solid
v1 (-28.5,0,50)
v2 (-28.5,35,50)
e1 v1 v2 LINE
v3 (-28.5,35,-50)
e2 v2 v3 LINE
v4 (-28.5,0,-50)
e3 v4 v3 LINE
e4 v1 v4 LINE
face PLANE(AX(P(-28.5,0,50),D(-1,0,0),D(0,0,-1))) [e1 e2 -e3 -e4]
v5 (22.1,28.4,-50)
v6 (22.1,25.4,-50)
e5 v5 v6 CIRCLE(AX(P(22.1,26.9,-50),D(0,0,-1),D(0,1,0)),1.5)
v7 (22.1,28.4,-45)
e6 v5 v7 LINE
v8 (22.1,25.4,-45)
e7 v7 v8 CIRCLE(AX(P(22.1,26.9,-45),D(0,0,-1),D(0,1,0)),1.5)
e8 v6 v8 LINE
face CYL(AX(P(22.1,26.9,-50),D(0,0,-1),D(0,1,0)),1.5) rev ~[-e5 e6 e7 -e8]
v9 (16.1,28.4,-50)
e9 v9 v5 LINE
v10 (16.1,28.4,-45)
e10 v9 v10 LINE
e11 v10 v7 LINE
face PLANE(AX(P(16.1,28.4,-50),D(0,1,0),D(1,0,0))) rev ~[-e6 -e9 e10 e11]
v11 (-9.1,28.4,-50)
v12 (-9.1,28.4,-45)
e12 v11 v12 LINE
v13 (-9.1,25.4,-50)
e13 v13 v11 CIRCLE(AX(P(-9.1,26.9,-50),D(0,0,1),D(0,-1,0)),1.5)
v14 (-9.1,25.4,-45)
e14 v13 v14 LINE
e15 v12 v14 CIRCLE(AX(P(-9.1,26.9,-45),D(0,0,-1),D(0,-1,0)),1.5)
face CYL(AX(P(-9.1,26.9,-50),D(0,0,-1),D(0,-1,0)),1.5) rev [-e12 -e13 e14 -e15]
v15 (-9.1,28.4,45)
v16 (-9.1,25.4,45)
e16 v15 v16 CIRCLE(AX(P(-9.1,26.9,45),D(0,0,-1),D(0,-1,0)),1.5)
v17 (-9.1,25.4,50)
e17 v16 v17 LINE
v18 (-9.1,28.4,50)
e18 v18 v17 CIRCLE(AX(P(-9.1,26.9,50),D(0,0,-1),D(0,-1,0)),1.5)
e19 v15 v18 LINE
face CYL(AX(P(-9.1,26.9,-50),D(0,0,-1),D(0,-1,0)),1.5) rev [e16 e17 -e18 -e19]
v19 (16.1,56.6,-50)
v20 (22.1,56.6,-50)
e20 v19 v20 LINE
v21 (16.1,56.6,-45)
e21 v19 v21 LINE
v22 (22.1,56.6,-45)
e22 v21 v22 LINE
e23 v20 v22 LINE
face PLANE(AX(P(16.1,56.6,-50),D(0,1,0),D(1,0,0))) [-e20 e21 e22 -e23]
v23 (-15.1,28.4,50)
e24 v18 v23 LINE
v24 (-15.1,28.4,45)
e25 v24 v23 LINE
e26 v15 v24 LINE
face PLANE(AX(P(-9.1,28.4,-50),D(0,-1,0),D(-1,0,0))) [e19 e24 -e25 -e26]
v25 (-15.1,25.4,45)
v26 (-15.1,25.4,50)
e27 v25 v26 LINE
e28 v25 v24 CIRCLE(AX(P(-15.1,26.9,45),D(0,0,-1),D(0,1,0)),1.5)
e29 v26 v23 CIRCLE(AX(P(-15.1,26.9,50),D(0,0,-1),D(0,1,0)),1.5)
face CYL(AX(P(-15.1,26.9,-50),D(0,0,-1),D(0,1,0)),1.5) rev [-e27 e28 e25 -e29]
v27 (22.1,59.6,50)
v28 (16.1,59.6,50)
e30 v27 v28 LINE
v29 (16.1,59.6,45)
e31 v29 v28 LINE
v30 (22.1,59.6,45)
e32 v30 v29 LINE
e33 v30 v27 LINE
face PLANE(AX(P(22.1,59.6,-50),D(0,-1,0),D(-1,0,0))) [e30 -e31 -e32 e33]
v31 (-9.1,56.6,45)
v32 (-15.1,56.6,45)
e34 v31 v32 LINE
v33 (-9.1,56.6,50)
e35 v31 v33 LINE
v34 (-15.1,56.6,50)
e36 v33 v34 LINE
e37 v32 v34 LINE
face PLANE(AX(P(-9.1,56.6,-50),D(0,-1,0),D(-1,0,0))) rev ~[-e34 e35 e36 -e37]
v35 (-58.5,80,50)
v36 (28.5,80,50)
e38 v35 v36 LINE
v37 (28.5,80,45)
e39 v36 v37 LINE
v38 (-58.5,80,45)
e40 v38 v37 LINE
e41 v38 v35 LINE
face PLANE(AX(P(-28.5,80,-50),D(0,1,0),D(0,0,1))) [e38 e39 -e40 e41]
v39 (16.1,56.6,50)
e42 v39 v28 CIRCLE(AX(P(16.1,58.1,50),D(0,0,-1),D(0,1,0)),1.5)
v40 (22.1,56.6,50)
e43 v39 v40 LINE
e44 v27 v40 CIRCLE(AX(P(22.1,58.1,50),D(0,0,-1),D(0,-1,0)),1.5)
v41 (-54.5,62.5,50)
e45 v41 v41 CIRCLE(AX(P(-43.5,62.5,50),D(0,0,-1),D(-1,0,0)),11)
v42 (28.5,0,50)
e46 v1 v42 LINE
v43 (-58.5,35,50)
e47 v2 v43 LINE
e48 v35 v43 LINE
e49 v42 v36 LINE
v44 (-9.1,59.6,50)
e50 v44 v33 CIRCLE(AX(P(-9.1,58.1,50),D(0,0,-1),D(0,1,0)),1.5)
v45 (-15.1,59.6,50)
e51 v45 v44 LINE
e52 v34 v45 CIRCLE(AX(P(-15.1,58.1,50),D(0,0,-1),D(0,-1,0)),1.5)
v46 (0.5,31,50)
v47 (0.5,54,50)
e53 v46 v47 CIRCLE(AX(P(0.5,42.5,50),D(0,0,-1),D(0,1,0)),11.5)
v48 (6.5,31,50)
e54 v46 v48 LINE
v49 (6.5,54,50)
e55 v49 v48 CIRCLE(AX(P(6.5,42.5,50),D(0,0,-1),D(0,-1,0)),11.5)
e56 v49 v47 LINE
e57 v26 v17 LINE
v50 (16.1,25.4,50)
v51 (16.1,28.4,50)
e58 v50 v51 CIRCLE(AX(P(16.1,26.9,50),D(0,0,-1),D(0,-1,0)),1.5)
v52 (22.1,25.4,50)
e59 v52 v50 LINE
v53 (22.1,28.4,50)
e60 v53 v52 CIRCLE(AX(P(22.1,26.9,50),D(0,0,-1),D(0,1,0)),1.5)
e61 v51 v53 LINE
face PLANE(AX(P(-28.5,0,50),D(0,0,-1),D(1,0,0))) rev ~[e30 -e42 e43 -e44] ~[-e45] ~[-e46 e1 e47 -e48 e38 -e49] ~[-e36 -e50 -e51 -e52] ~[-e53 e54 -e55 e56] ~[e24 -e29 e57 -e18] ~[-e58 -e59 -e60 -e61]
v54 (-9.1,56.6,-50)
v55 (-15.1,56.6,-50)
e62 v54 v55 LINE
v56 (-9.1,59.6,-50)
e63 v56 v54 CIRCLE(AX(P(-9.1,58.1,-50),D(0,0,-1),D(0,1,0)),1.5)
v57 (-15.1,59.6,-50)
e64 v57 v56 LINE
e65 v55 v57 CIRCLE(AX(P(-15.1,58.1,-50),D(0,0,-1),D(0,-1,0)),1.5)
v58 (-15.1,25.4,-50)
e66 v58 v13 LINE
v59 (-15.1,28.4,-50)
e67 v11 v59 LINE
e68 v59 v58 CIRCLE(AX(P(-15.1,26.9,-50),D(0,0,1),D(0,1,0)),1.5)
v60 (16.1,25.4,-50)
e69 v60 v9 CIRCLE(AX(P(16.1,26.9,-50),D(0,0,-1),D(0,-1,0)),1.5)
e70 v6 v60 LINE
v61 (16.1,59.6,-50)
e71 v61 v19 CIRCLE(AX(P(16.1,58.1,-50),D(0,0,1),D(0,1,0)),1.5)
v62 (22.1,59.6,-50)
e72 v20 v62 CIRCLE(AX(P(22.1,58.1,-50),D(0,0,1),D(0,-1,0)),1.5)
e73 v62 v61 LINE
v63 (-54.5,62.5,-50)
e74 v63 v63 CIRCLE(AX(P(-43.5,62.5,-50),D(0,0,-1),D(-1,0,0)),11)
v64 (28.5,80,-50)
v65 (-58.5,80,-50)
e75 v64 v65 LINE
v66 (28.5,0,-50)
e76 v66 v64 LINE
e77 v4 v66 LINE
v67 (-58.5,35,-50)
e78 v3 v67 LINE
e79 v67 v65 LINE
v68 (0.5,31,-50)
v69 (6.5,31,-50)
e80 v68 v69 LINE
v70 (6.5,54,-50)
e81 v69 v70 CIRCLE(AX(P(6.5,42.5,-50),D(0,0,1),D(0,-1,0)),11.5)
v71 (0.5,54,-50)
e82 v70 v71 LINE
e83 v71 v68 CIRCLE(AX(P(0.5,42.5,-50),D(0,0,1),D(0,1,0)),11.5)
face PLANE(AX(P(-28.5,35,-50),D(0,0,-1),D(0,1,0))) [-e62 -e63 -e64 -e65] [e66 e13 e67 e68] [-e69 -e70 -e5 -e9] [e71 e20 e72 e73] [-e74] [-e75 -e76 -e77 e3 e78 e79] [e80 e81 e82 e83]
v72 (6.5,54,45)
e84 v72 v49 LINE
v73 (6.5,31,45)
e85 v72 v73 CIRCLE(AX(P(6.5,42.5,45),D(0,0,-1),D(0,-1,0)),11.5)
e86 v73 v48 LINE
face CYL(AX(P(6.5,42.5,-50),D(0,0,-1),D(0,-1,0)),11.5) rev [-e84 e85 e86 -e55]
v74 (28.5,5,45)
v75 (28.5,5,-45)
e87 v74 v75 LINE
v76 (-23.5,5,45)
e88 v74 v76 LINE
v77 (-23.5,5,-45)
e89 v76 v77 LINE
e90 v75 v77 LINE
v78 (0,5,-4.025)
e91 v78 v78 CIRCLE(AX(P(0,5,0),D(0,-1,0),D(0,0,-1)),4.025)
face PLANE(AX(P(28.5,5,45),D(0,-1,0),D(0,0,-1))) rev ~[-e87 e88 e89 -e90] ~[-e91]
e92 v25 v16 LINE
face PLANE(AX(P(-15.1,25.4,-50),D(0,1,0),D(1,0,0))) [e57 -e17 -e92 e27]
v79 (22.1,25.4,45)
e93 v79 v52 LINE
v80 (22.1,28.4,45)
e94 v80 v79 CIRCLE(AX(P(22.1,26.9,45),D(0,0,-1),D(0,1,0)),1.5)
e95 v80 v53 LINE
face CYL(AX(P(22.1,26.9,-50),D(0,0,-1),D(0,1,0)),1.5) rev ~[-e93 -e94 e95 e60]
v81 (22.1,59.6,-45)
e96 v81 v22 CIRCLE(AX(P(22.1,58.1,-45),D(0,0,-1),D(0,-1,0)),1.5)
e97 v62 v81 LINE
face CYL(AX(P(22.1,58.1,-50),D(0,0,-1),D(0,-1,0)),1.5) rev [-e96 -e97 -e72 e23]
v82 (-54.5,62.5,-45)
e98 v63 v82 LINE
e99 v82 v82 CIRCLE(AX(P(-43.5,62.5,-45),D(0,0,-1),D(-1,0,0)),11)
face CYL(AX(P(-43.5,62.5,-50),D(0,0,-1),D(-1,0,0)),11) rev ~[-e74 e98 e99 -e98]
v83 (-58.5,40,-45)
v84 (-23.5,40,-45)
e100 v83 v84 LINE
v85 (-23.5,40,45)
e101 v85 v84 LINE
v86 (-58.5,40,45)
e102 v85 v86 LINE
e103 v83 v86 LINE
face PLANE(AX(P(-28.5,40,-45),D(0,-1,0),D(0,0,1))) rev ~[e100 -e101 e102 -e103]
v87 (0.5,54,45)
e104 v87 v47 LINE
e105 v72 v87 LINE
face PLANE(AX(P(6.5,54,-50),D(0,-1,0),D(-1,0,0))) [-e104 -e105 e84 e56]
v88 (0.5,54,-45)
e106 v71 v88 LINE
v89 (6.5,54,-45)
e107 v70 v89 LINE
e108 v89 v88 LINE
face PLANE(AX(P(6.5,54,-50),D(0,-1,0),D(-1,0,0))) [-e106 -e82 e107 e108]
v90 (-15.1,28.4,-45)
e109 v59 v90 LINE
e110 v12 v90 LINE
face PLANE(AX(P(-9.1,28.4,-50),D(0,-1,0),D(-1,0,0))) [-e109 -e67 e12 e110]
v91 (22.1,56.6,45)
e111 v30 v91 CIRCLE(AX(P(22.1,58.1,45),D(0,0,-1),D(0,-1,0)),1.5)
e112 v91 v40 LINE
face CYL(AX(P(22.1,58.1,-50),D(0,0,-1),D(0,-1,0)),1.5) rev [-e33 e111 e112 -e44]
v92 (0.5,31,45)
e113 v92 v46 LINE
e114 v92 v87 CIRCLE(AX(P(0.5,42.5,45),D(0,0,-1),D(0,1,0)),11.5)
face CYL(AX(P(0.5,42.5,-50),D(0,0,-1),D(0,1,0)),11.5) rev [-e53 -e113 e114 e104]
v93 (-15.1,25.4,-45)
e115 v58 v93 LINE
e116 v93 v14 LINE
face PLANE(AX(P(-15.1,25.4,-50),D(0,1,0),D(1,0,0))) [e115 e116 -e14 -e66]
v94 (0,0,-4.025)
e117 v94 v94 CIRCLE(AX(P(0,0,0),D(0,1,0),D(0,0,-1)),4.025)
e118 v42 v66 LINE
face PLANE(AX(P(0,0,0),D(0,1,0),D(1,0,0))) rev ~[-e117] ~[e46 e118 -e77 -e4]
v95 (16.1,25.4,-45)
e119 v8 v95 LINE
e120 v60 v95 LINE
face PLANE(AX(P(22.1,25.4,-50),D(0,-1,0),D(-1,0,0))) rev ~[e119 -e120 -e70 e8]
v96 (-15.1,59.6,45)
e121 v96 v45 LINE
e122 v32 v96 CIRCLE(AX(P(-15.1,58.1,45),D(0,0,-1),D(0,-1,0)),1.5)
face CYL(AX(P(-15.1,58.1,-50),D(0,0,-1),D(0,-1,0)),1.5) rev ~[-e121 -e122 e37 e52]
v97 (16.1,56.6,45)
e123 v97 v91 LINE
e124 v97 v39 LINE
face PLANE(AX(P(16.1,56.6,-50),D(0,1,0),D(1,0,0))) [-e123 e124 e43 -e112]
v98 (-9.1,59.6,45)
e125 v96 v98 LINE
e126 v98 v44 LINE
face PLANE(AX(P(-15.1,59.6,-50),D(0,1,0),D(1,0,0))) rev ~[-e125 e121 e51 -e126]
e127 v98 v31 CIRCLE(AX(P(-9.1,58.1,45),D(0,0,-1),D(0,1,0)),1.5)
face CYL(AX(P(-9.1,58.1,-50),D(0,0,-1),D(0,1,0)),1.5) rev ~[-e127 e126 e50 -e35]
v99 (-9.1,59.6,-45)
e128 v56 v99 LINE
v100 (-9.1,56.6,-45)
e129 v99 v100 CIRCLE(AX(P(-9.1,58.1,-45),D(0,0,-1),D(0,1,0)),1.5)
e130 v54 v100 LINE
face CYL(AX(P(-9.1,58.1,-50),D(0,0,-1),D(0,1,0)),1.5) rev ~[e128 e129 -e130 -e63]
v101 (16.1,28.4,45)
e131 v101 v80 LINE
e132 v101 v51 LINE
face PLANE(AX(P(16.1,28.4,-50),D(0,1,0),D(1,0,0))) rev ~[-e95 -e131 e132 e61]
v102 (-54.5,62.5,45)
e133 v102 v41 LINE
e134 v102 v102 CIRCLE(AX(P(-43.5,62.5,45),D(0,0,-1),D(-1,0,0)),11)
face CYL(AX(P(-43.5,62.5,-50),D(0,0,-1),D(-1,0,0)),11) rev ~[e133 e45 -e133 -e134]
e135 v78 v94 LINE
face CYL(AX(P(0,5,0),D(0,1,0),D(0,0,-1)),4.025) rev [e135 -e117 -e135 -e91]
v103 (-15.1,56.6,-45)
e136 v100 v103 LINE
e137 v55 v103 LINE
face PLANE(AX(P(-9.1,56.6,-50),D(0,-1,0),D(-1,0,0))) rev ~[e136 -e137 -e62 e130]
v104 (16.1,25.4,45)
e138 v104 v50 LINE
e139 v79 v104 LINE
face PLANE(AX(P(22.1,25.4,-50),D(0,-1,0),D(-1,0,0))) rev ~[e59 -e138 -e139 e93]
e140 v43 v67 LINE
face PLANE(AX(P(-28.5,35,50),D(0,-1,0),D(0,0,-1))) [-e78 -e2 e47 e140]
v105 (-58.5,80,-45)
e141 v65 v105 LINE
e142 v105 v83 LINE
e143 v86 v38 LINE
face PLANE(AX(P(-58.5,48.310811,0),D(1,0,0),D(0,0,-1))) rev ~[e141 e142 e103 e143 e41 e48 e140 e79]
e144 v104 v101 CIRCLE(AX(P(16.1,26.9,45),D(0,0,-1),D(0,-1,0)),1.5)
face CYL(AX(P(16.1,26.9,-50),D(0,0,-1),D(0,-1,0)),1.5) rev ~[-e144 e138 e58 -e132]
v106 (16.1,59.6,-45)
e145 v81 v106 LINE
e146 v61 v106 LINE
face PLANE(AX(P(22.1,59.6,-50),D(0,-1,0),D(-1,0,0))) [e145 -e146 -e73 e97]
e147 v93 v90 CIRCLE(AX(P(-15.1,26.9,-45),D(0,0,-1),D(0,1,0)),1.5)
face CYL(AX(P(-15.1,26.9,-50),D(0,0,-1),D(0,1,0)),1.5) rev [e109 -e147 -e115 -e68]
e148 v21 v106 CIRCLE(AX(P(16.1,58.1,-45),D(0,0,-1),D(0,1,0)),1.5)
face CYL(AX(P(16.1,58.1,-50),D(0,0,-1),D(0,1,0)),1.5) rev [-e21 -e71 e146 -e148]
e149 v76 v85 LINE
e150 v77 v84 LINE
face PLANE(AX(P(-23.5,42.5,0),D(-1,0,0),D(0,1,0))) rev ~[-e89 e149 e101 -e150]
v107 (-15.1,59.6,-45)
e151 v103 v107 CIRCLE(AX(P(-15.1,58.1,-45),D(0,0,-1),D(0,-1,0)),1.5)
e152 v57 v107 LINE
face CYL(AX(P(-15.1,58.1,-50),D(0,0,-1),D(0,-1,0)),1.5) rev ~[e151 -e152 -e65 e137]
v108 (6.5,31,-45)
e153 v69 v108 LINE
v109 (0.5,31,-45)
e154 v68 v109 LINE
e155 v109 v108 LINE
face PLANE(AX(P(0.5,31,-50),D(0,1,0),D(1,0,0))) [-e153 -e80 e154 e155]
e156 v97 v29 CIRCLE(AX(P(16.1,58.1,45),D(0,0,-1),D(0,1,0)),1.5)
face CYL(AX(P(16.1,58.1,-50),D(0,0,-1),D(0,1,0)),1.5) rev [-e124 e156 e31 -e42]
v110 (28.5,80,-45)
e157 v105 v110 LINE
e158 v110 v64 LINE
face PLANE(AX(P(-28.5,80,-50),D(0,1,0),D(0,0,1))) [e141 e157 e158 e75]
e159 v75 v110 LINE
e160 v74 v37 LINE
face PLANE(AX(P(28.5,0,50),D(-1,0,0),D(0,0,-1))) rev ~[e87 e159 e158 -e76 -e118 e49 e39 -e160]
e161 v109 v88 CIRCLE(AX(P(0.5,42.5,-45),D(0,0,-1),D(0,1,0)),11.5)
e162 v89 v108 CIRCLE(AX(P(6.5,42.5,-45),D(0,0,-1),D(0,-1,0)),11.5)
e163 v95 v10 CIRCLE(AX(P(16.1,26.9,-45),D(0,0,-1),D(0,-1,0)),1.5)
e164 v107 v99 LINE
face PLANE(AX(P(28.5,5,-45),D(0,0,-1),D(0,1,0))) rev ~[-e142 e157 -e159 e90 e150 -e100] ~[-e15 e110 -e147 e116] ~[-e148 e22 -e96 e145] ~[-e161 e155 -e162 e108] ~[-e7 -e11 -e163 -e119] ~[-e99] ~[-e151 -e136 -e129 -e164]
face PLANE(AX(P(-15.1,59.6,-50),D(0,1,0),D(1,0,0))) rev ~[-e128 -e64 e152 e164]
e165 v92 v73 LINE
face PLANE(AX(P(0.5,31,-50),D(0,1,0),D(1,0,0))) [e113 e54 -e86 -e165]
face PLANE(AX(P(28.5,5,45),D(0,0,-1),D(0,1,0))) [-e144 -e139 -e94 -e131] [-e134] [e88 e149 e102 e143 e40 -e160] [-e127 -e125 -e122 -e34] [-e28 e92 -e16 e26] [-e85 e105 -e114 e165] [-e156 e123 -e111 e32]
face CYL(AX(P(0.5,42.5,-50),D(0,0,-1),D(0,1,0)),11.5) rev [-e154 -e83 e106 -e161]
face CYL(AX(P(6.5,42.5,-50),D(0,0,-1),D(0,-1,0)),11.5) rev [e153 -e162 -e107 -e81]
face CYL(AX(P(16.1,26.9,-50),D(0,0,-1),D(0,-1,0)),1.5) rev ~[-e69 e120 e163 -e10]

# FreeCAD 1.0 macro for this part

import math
import FreeCAD as App
import Part
import Sketcher


def add_polygon(sketch, points):
    """Adds a closed chain of lines whose ends are joined by coincident constraints."""
    first, n = sketch.GeometryCount, len(points)
    for a, b in zip(points, points[1:] + points[:1]):
        sketch.addGeometry(Part.LineSegment(App.Vector(*a, 0), App.Vector(*b, 0)), False)
    for i in range(n):
        sketch.addConstraint(Sketcher.Constraint("Coincident", first + i, 2, first + (i + 1) % n, 1))

doc = App.newDocument("Part")
body = doc.addObject("PartDesign::Body", "Body")

sketch1 = body.newObject("Sketcher::SketchObject", "Sketch")
sketch1.AttachmentSupport = (doc.getObject("XZ_Plane"), [""])
sketch1.MapMode = "FlatFace"
add_polygon(sketch1, [(-28, -50), (-28, 50), (28, 50), (28, -50)])
sketch1.addConstraint([
    Sketcher.Constraint("Vertical", 0),
    Sketcher.Constraint("Horizontal", 1),
    Sketcher.Constraint("Vertical", 2),
    Sketcher.Constraint("Horizontal", 3),
    Sketcher.Constraint("Symmetric", 0, 2, 2, 2, -1, 1),
    Sketcher.Constraint("DistanceX", 1, 1, 1, 2, 57.0),
    Sketcher.Constraint("DistanceY", 0, 1, 0, 2, 100.0),
])
pad1 = body.newObject("PartDesign::Pad", "Pad")
pad1.Profile = sketch1
pad1.Length = 80
pad1.Reversed = True

sketch2 = body.newObject("Sketcher::SketchObject", "Sketch001")
sketch2.AttachmentSupport = (doc.getObject("YZ_Plane"), [""])
sketch2.MapMode = "FlatFace"
sketch2.AttachmentOffset = App.Placement(App.Vector(0, 0, 28.5), App.Rotation())
add_polygon(sketch2, [(5, -45), (5, 45), (80, 45), (80, -45)])
sketch2.addConstraint([
    Sketcher.Constraint("Vertical", 0),
    Sketcher.Constraint("Horizontal", 1),
    Sketcher.Constraint("Vertical", 2),
    Sketcher.Constraint("Horizontal", 3),
    Sketcher.Constraint("DistanceX", 1, 1, 1, 2, 75.0),
    Sketcher.Constraint("DistanceY", 0, 1, 0, 2, 90.0),
    Sketcher.Constraint("DistanceX", -1, 1, 0, 2, 5.0),
    Sketcher.Constraint("DistanceY", -1, 1, 0, 2, 45.0),
])
pocket1 = body.newObject("PartDesign::Pocket", "Pocket")
pocket1.Profile = sketch2
pocket1.Length = 52

sketch3 = body.newObject("Sketcher::SketchObject", "Sketch002")
sketch3.AttachmentSupport = (doc.getObject("XZ_Plane"), [""])
sketch3.MapMode = "FlatFace"
sketch3.AttachmentOffset = App.Placement(App.Vector(0, 0, -5), App.Rotation())
sketch3.addGeometry(Part.Circle(App.Vector(0, 0, 0), App.Vector(0, 0, 1), 4), False)
sketch3.addConstraint([
    Sketcher.Constraint("Coincident", 0, 3, -1, 1),
    Sketcher.Constraint("Diameter", 0, 8.05),
])
pocket2 = body.newObject("PartDesign::Pocket", "Pocket001")
pocket2.Profile = sketch3
pocket2.Type = "ThroughAll"
pocket2.Reversed = True

sketch4 = body.newObject("Sketcher::SketchObject", "Sketch003")
sketch4.AttachmentSupport = (doc.getObject("YZ_Plane"), [""])
sketch4.MapMode = "FlatFace"
sketch4.AttachmentOffset = App.Placement(App.Vector(0, 0, -28.5), App.Rotation())
add_polygon(sketch4, [(80, -45), (80, -50), (35, -50), (35, 50), (80, 50), (80, 45), (40, 45), (40, -45)])
sketch4.addConstraint([
    Sketcher.Constraint("Vertical", 0),
    Sketcher.Constraint("Horizontal", 1),
    Sketcher.Constraint("Vertical", 2),
    Sketcher.Constraint("Horizontal", 3),
    Sketcher.Constraint("Vertical", 4),
    Sketcher.Constraint("Horizontal", 5),
    Sketcher.Constraint("Vertical", 6),
    Sketcher.Constraint("Horizontal", 7),
    Sketcher.Constraint("Symmetric", 0, 2, 3, 2, -1),
    Sketcher.Constraint("Equal", 0, 4),
    Sketcher.Constraint("DistanceX", 1, 2, 1, 1, 45.0),
    Sketcher.Constraint("DistanceX", 5, 2, 5, 1, 40.0),
    Sketcher.Constraint("DistanceY", 0, 2, 0, 1, 5.0),
    Sketcher.Constraint("DistanceY", 2, 1, 2, 2, 100.0),
    Sketcher.Constraint("DistanceX", -1, 1, 0, 2, 80.0),
])
pad2 = body.newObject("PartDesign::Pad", "Pad001")
pad2.Profile = sketch4
pad2.Length = 30
pad2.Reversed = True

sketch5 = body.newObject("Sketcher::SketchObject", "Sketch004")
sketch5.AttachmentSupport = (doc.getObject("YZ_Plane"), [""])
sketch5.MapMode = "FlatFace"
sketch5.AttachmentOffset = App.Placement(App.Vector(0, 0, -28.5), App.Rotation())
add_polygon(sketch5, [(80, -45), (40, -45), (40, 45), (80, 45)])
sketch5.addConstraint([
    Sketcher.Constraint("Horizontal", 0),
    Sketcher.Constraint("Vertical", 1),
    Sketcher.Constraint("Horizontal", 2),
    Sketcher.Constraint("Vertical", 3),
    Sketcher.Constraint("DistanceX", 0, 2, 0, 1, 40.0),
    Sketcher.Constraint("DistanceY", 1, 1, 1, 2, 90.0),
    Sketcher.Constraint("DistanceX", -1, 1, 0, 2, 40.0),
    Sketcher.Constraint("DistanceY", 0, 2, -1, 1, 45.0),
])
pocket3 = body.newObject("PartDesign::Pocket", "Pocket002")
pocket3.Profile = sketch5
pocket3.Type = "UpToFirst"
pocket3.Reversed = True

sketch6 = body.newObject("Sketcher::SketchObject", "Sketch005")
sketch6.AttachmentSupport = (doc.getObject("XY_Plane"), [""])
sketch6.MapMode = "FlatFace"
sketch6.AttachmentOffset = App.Placement(App.Vector(0, 0, -50), App.Rotation())
sketch6.addGeometry([
    Part.Circle(App.Vector(-43.5, 62.5, 0), App.Vector(0, 0, 1), 11),
    Part.LineSegment(App.Vector(16.1, 59.6, 0), App.Vector(22.1, 59.6, 0)),
    Part.ArcOfCircle(Part.Circle(App.Vector(22.1, 58.1, 0), App.Vector(0, 0, 1), 1.5), math.radians(-90), math.radians(90)),
    Part.LineSegment(App.Vector(22.1, 56.6, 0), App.Vector(16.1, 56.6, 0)),
    Part.ArcOfCircle(Part.Circle(App.Vector(16.1, 58.1, 0), App.Vector(0, 0, 1), 1.5), math.radians(90), math.radians(270)),
    Part.LineSegment(App.Vector(6.5, 31, 0), App.Vector(0.5, 31, 0)),
    Part.ArcOfCircle(Part.Circle(App.Vector(0.5, 42.5, 0), App.Vector(0, 0, 1), 11.5), math.radians(90), math.radians(270)),
    Part.LineSegment(App.Vector(0.5, 54, 0), App.Vector(6.5, 54, 0)),
    Part.ArcOfCircle(Part.Circle(App.Vector(6.5, 42.5, 0), App.Vector(0, 0, 1), 11.5), math.radians(-90), math.radians(90)),
    Part.LineSegment(App.Vector(22.1, 25.4, 0), App.Vector(16.1, 25.4, 0)),
    Part.ArcOfCircle(Part.Circle(App.Vector(16.1, 26.9, 0), App.Vector(0, 0, 1), 1.5), math.radians(90), math.radians(270)),
    Part.LineSegment(App.Vector(16.1, 28.4, 0), App.Vector(22.1, 28.4, 0)),
    Part.ArcOfCircle(Part.Circle(App.Vector(22.1, 26.9, 0), App.Vector(0, 0, 1), 1.5), math.radians(-90), math.radians(90)),
    Part.LineSegment(App.Vector(-9.1, 25.4, 0), App.Vector(-15.1, 25.4, 0)),
    Part.ArcOfCircle(Part.Circle(App.Vector(-15.1, 26.9, 0), App.Vector(0, 0, 1), 1.5), math.radians(90), math.radians(270)),
    Part.LineSegment(App.Vector(-15.1, 28.4, 0), App.Vector(-9.1, 28.4, 0)),
    Part.ArcOfCircle(Part.Circle(App.Vector(-9.1, 26.9, 0), App.Vector(0, 0, 1), 1.5), math.radians(-90), math.radians(90)),
    Part.LineSegment(App.Vector(-15.1, 59.6, 0), App.Vector(-9.1, 59.6, 0)),
    Part.ArcOfCircle(Part.Circle(App.Vector(-9.1, 58.1, 0), App.Vector(0, 0, 1), 1.5), math.radians(-90), math.radians(90)),
    Part.LineSegment(App.Vector(-9.1, 56.6, 0), App.Vector(-15.1, 56.6, 0)),
    Part.ArcOfCircle(Part.Circle(App.Vector(-15.1, 58.1, 0), App.Vector(0, 0, 1), 1.5), math.radians(90), math.radians(270)),
], False)
sketch6.addConstraint([
    Sketcher.Constraint("Tangent", 1, 2, 2, 2),
    Sketcher.Constraint("Tangent", 2, 1, 3, 1),
    Sketcher.Constraint("Tangent", 3, 2, 4, 2),
    Sketcher.Constraint("Tangent", 4, 1, 1, 1),
    Sketcher.Constraint("Tangent", 5, 2, 6, 2),
    Sketcher.Constraint("Tangent", 6, 1, 7, 1),
    Sketcher.Constraint("Tangent", 7, 2, 8, 2),
    Sketcher.Constraint("Tangent", 8, 1, 5, 1),
    Sketcher.Constraint("Tangent", 9, 2, 10, 2),
    Sketcher.Constraint("Tangent", 10, 1, 11, 1),
    Sketcher.Constraint("Tangent", 11, 2, 12, 2),
    Sketcher.Constraint("Tangent", 12, 1, 9, 1),
    Sketcher.Constraint("Tangent", 13, 2, 14, 2),
    Sketcher.Constraint("Tangent", 14, 1, 15, 1),
    Sketcher.Constraint("Tangent", 15, 2, 16, 2),
    Sketcher.Constraint("Tangent", 16, 1, 13, 1),
    Sketcher.Constraint("Tangent", 17, 2, 18, 2),
    Sketcher.Constraint("Tangent", 18, 1, 19, 1),
    Sketcher.Constraint("Tangent", 19, 2, 20, 2),
    Sketcher.Constraint("Tangent", 20, 1, 17, 1),
    Sketcher.Constraint("Horizontal", 1),
    Sketcher.Constraint("Horizontal", 3),
    Sketcher.Constraint("Horizontal", 5),
    Sketcher.Constraint("Horizontal", 7),
    Sketcher.Constraint("Horizontal", 9),
    Sketcher.Constraint("Horizontal", 11),
    Sketcher.Constraint("Horizontal", 13),
    Sketcher.Constraint("Horizontal", 15),
    Sketcher.Constraint("Horizontal", 17),
    Sketcher.Constraint("Horizontal", 19),
    Sketcher.Constraint("Equal", 4, 10),
    Sketcher.Constraint("Equal", 12, 14),
    Sketcher.Constraint("Equal", 16, 18),
    Sketcher.Constraint("Horizontal", 12, 3, 14, 3),
    Sketcher.Constraint("Horizontal", 4, 3, 18, 3),
    Sketcher.Constraint("Vertical", 4, 3, 10, 3),
    Sketcher.Constraint("Vertical", 2, 3, 12, 3),
    Sketcher.Constraint("Vertical", 16, 3, 18, 3),
    Sketcher.Constraint("Vertical", 14, 3, 20, 3),
    Sketcher.Constraint("Equal", 3, 5),
    Sketcher.Constraint("Equal", 11, 13),
    Sketcher.Constraint("Diameter", 0, 22.0),
    Sketcher.Constraint("Radius", 2, 1.5),
    Sketcher.Constraint("Radius", 6, 11.5),
    Sketcher.Constraint("DistanceX", 1, 1, 1, 2, 6.0),
    Sketcher.Constraint("DistanceY", -1, 1, 5, 2, 31.0),
    Sketcher.Constraint("DistanceX", 0, 3, 6, 3, 44.0),
    Sketcher.Constraint("DistanceY", 6, 3, 0, 3, 20.0),
    Sketcher.Constraint("DistanceX", 0, 3, -1, 1, 43.5),
    Sketcher.Constraint("DistanceX", -1, 1, 2, 3, 22.1),
    Sketcher.Constraint("DistanceY", -1, 1, 2, 3, 58.1),
    Sketcher.Constraint("DistanceY", -1, 1, 10, 3, 26.9),
    Sketcher.Constraint("DistanceX", 14, 3, -1, 1, 15.1),
])
pocket4 = body.newObject("PartDesign::Pocket", "Pocket003")
pocket4.Profile = sketch6
pocket4.Type = "ThroughAll"
pocket4.Reversed = True

doc.recompute()
